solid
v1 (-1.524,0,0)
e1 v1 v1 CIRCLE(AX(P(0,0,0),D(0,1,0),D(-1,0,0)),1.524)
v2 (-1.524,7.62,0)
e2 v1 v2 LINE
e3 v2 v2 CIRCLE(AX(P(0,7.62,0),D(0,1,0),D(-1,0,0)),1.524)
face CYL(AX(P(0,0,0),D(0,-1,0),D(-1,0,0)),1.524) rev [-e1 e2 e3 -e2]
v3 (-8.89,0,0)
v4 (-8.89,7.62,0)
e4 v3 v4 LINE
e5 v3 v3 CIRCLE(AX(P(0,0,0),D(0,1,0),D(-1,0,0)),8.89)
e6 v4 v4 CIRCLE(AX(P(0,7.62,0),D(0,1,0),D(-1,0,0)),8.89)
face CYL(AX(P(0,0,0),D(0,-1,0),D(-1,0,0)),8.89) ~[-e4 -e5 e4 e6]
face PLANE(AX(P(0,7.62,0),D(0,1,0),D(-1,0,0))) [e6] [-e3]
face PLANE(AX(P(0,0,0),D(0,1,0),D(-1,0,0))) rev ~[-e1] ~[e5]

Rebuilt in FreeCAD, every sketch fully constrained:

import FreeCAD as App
import Part
import Sketcher
Q = App.Units.Quantity

doc = App.newDocument("Part")
body = doc.addObject("PartDesign::Body", "Body")

# Sketch on XZ plane
sketch1 = body.newObject("Sketcher::SketchObject", "Sketch")
sketch1.AttachmentSupport = (doc.getObject("XZ_Plane"), [""])
sketch1.MapMode = "FlatFace"
sketch1.addGeometry([
    Part.Circle(App.Vector(0, 0, 0), App.Vector(0, 0, 1), 8.9),
    Part.Circle(App.Vector(0, 0, 0), App.Vector(0, 0, 1), 1.5),
], False)
sketch1.addConstraint([
    Sketcher.Constraint("Coincident", 0, 3, -1, 1),
    Sketcher.Constraint("Coincident", 1, 3, -1, 1),
    Sketcher.Constraint("Diameter", 0, Q("0.7 in")),
    Sketcher.Constraint("Diameter", 1, Q("0.12 in")),
])
pad1 = body.newObject("PartDesign::Pad", "Pad")
pad1.Profile = sketch1
pad1.Length = Q("0.3 in")
pad1.Reversed = True

doc.recompute()
